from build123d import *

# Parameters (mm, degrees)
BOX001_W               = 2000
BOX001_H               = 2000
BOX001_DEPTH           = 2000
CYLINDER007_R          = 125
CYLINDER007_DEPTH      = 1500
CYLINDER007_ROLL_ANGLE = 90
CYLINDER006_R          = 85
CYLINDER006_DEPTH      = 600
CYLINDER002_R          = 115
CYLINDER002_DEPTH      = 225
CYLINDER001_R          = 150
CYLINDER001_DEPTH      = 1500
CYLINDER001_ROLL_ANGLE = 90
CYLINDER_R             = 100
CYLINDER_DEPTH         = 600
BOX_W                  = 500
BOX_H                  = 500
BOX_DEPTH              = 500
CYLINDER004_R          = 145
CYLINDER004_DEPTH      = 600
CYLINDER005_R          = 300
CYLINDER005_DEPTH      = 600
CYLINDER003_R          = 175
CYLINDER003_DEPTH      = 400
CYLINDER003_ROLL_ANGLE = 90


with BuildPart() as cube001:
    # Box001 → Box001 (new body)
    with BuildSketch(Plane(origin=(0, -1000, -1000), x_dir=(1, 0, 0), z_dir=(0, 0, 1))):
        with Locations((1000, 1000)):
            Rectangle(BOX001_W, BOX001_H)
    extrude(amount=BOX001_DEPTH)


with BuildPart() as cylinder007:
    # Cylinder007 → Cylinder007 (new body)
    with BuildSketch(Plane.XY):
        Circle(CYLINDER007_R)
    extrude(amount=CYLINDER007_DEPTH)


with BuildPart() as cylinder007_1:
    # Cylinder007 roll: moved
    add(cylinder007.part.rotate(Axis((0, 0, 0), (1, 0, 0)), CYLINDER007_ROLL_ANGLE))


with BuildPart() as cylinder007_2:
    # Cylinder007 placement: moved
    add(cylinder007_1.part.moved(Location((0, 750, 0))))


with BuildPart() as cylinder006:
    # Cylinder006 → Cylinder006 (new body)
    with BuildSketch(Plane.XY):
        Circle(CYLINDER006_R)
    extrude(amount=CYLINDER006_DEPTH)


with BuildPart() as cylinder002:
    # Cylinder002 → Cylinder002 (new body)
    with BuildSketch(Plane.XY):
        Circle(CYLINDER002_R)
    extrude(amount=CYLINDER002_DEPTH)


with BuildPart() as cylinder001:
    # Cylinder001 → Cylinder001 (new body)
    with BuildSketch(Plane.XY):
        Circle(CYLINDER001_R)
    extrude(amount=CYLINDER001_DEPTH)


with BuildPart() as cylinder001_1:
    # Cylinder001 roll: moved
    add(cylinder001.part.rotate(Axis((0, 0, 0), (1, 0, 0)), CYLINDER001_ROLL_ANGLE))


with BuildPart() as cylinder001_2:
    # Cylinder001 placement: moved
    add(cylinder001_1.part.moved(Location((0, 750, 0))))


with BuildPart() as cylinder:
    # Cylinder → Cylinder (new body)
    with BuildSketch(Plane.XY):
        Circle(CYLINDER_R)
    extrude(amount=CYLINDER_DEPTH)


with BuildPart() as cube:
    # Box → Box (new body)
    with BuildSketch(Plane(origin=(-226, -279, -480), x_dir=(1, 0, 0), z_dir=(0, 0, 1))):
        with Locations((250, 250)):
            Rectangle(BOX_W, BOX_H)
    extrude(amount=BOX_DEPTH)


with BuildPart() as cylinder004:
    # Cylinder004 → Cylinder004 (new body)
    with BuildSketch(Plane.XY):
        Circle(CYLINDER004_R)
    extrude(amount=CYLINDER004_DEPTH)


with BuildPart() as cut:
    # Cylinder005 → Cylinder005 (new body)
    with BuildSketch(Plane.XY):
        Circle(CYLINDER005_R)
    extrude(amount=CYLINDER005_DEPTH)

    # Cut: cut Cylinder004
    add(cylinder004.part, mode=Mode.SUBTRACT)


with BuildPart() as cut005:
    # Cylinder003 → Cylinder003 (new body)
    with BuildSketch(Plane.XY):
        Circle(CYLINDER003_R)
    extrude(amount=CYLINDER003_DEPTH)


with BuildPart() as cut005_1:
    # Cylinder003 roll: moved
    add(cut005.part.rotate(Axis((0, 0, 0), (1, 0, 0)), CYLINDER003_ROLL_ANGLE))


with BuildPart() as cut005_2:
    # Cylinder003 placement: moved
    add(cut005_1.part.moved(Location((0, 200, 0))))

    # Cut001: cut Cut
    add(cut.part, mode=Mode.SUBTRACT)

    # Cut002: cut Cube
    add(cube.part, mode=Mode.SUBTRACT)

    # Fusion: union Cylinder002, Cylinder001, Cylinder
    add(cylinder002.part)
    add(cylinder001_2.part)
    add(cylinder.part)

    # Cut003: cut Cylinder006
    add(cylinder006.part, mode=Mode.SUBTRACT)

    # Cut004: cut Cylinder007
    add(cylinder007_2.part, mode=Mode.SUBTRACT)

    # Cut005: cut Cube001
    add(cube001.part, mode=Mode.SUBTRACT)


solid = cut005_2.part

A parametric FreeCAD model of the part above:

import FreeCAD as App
import Part
import Sketcher


def add_polygon(sketch, points):
    """Adds a closed chain of lines whose ends are joined by coincident constraints."""
    first, n = sketch.GeometryCount, len(points)
    for a, b in zip(points, points[1:] + points[:1]):
        sketch.addGeometry(Part.LineSegment(App.Vector(*a, 0), App.Vector(*b, 0)), False)
    for i in range(n):
        sketch.addConstraint(Sketcher.Constraint("Coincident", first + i, 2, first + (i + 1) % n, 1))

doc = App.newDocument("Part")
body = doc.addObject("PartDesign::Body", "Body")

# Sketch on XY plane
sketch1 = doc.addObject("Sketcher::SketchObject", "Sketch")
body.addObject(sketch1)
sketch1.AttachmentSupport = (doc.XY_Plane, [""])
sketch1.MapMode = "FlatFace"
sketch1.AttachmentOffset = App.Placement(App.Vector(0, 0, -1000), App.Rotation())
add_polygon(sketch1, [(0, 1000), (0, -1000), (2000, -1000), (2000, 1000)])  # lines 0-3
sketch1.addConstraint([
    Sketcher.Constraint("Vertical", 0),
    Sketcher.Constraint("Horizontal", 1),
    Sketcher.Constraint("Vertical", 2),
    Sketcher.Constraint("Horizontal", 3),
    Sketcher.Constraint("Symmetric", 0, 2, 3, 2, -1, 1),
    Sketcher.Constraint("Equal", 3, 0),
    Sketcher.Constraint("DistanceX", 1, 1, 1, 2, 2000.0),
])
pad1 = doc.addObject("PartDesign::Pad", "Pad")
body.addObject(pad1)
pad1.Profile = sketch1
pad1.Length = 2000
body2 = doc.addObject("PartDesign::Body", "Body001")

# Sketch on XY plane
sketch2 = doc.addObject("Sketcher::SketchObject", "Sketch001")
body2.addObject(sketch2)
sketch2.AttachmentSupport = (doc.getObject("XY_Plane001"), [""])
sketch2.MapMode = "FlatFace"
sketch2.addGeometry(Part.Circle(App.Vector(0, 0, 0), App.Vector(0, 0, 1), 125), False)
sketch2.addConstraint([
    Sketcher.Constraint("Coincident", 0, 3, -1, 1),
    Sketcher.Constraint("Diameter", 0, 250.0),
])
pad2 = doc.addObject("PartDesign::Pad", "Pad001")
body2.addObject(pad2)
pad2.Profile = sketch2
pad2.Length = 1500
body3 = doc.addObject("PartDesign::Body", "Body002")
doc.recompute()

body2.Placement = App.Placement(App.Vector(0, 0, 0), App.Rotation(App.Vector(1, 0, 0), 90))
boolean = doc.addObject("PartDesign::Boolean", "Boolean")
body3.addObject(boolean)
boolean.Type = "Fuse"
boolean.addObjects([body2])
body4 = doc.addObject("PartDesign::Body", "Body003")
doc.recompute()

body3.Placement = App.Placement(App.Vector(0, 750, 0), App.Rotation(App.Vector(0, 0, 1), 0))
boolean2 = doc.addObject("PartDesign::Boolean", "Boolean001")
body4.addObject(boolean2)
boolean2.Type = "Fuse"
boolean2.addObjects([body3])
body5 = doc.addObject("PartDesign::Body", "Body004")

# Sketch on XY plane
sketch3 = doc.addObject("Sketcher::SketchObject", "Sketch002")
body5.addObject(sketch3)
sketch3.AttachmentSupport = (doc.getObject("XY_Plane004"), [""])
sketch3.MapMode = "FlatFace"
sketch3.addGeometry(Part.Circle(App.Vector(0, 0, 0), App.Vector(0, 0, 1), 85), False)
sketch3.addConstraint([
    Sketcher.Constraint("Coincident", 0, 3, -1, 1),
    Sketcher.Constraint("Diameter", 0, 170.0),
])
pad3 = doc.addObject("PartDesign::Pad", "Pad002")
body5.addObject(pad3)
pad3.Profile = sketch3
pad3.Length = 600
body6 = doc.addObject("PartDesign::Body", "Body005")

# Sketch on XY plane
sketch4 = doc.addObject("Sketcher::SketchObject", "Sketch003")
body6.addObject(sketch4)
sketch4.AttachmentSupport = (doc.getObject("XY_Plane005"), [""])
sketch4.MapMode = "FlatFace"
sketch4.addGeometry(Part.Circle(App.Vector(0, 0, 0), App.Vector(0, 0, 1), 115), False)
sketch4.addConstraint([
    Sketcher.Constraint("Coincident", 0, 3, -1, 1),
    Sketcher.Constraint("Diameter", 0, 230.0),
])
pad4 = doc.addObject("PartDesign::Pad", "Pad003")
body6.addObject(pad4)
pad4.Profile = sketch4
pad4.Length = 225
body7 = doc.addObject("PartDesign::Body", "Body006")

# Sketch on XY plane
sketch5 = doc.addObject("Sketcher::SketchObject", "Sketch004")
body7.addObject(sketch5)
sketch5.AttachmentSupport = (doc.getObject("XY_Plane006"), [""])
sketch5.MapMode = "FlatFace"
sketch5.addGeometry(Part.Circle(App.Vector(0, 0, 0), App.Vector(0, 0, 1), 150), False)
sketch5.addConstraint([
    Sketcher.Constraint("Coincident", 0, 3, -1, 1),
    Sketcher.Constraint("Diameter", 0, 300.0),
])
pad5 = doc.addObject("PartDesign::Pad", "Pad004")
body7.addObject(pad5)
pad5.Profile = sketch5
pad5.Length = 1500
body8 = doc.addObject("PartDesign::Body", "Body007")
doc.recompute()

body7.Placement = App.Placement(App.Vector(0, 0, 0), App.Rotation(App.Vector(1, 0, 0), 90))
boolean3 = doc.addObject("PartDesign::Boolean", "Boolean002")
body8.addObject(boolean3)
boolean3.Type = "Fuse"
boolean3.addObjects([body7])
body9 = doc.addObject("PartDesign::Body", "Body008")
doc.recompute()

body8.Placement = App.Placement(App.Vector(0, 750, 0), App.Rotation(App.Vector(0, 0, 1), 0))
boolean4 = doc.addObject("PartDesign::Boolean", "Boolean003")
body9.addObject(boolean4)
boolean4.Type = "Fuse"
boolean4.addObjects([body8])
body10 = doc.addObject("PartDesign::Body", "Body009")

# Sketch on XY plane
sketch6 = doc.addObject("Sketcher::SketchObject", "Sketch005")
body10.addObject(sketch6)
sketch6.AttachmentSupport = (doc.getObject("XY_Plane009"), [""])
sketch6.MapMode = "FlatFace"
sketch6.addGeometry(Part.Circle(App.Vector(0, 0, 0), App.Vector(0, 0, 1), 100), False)
sketch6.addConstraint([
    Sketcher.Constraint("Coincident", 0, 3, -1, 1),
    Sketcher.Constraint("Diameter", 0, 200.0),
])
pad6 = doc.addObject("PartDesign::Pad", "Pad005")
body10.addObject(pad6)
pad6.Profile = sketch6
pad6.Length = 600
body11 = doc.addObject("PartDesign::Body", "Body010")

# Sketch on XY plane
sketch7 = doc.addObject("Sketcher::SketchObject", "Sketch006")
body11.addObject(sketch7)
sketch7.AttachmentSupport = (doc.getObject("XY_Plane010"), [""])
sketch7.MapMode = "FlatFace"
sketch7.AttachmentOffset = App.Placement(App.Vector(0, 0, -480), App.Rotation())
add_polygon(sketch7, [(-226, 221), (-226, -279), (274, -279), (274, 221)])  # lines 0-3
sketch7.addConstraint([
    Sketcher.Constraint("Vertical", 0),
    Sketcher.Constraint("Horizontal", 1),
    Sketcher.Constraint("Vertical", 2),
    Sketcher.Constraint("Horizontal", 3),
    Sketcher.Constraint("Equal", 3, 0),
    Sketcher.Constraint("DistanceX", 1, 1, 1, 2, 500.0),
    Sketcher.Constraint("DistanceX", 0, 2, -1, 1, 226.0),
    Sketcher.Constraint("DistanceY", 0, 2, -1, 1, 279.0),
])
pad7 = doc.addObject("PartDesign::Pad", "Pad006")
body11.addObject(pad7)
pad7.Profile = sketch7
pad7.Length = 500
body12 = doc.addObject("PartDesign::Body", "Body011")

# Sketch on XY plane
sketch8 = doc.addObject("Sketcher::SketchObject", "Sketch007")
body12.addObject(sketch8)
sketch8.AttachmentSupport = (doc.getObject("XY_Plane011"), [""])
sketch8.MapMode = "FlatFace"
sketch8.addGeometry(Part.Circle(App.Vector(0, 0, 0), App.Vector(0, 0, 1), 145), False)
sketch8.addConstraint([
    Sketcher.Constraint("Coincident", 0, 3, -1, 1),
    Sketcher.Constraint("Diameter", 0, 290.0),
])
pad8 = doc.addObject("PartDesign::Pad", "Pad007")
body12.addObject(pad8)
pad8.Profile = sketch8
pad8.Length = 600
body13 = doc.addObject("PartDesign::Body", "Body012")

# Sketch on XY plane
sketch9 = doc.addObject("Sketcher::SketchObject", "Sketch008")
body13.addObject(sketch9)
sketch9.AttachmentSupport = (doc.getObject("XY_Plane012"), [""])
sketch9.MapMode = "FlatFace"
sketch9.addGeometry(Part.Circle(App.Vector(0, 0, 0), App.Vector(0, 0, 1), 300), False)
sketch9.addConstraint([
    Sketcher.Constraint("Coincident", 0, 3, -1, 1),
    Sketcher.Constraint("Diameter", 0, 600.0),
])
pad9 = doc.addObject("PartDesign::Pad", "Pad008")
body13.addObject(pad9)
pad9.Profile = sketch9
pad9.Length = 600
doc.recompute()

boolean5 = doc.addObject("PartDesign::Boolean", "Boolean004")
body13.addObject(boolean5)
boolean5.Type = "Cut"
boolean5.addObjects([body12])
body14 = doc.addObject("PartDesign::Body", "Body013")

# Sketch on XY plane
sketch10 = doc.addObject("Sketcher::SketchObject", "Sketch009")
body14.addObject(sketch10)
sketch10.AttachmentSupport = (doc.getObject("XY_Plane013"), [""])
sketch10.MapMode = "FlatFace"
sketch10.addGeometry(Part.Circle(App.Vector(0, 0, 0), App.Vector(0, 0, 1), 175), False)
sketch10.addConstraint([
    Sketcher.Constraint("Coincident", 0, 3, -1, 1),
    Sketcher.Constraint("Diameter", 0, 350.0),
])
pad10 = doc.addObject("PartDesign::Pad", "Pad009")
body14.addObject(pad10)
pad10.Profile = sketch10
pad10.Length = 400
body15 = doc.addObject("PartDesign::Body", "Body014")
doc.recompute()

body14.Placement = App.Placement(App.Vector(0, 0, 0), App.Rotation(App.Vector(1, 0, 0), 90))
boolean6 = doc.addObject("PartDesign::Boolean", "Boolean005")
body15.addObject(boolean6)
boolean6.Type = "Fuse"
boolean6.addObjects([body14])
body16 = doc.addObject("PartDesign::Body", "Body015")
doc.recompute()

body15.Placement = App.Placement(App.Vector(0, 200, 0), App.Rotation(App.Vector(0, 0, 1), 0))
boolean7 = doc.addObject("PartDesign::Boolean", "Boolean006")
body16.addObject(boolean7)
boolean7.Type = "Fuse"
boolean7.addObjects([body15])
doc.recompute()

boolean8 = doc.addObject("PartDesign::Boolean", "Boolean007")
body16.addObject(boolean8)
boolean8.Type = "Cut"
boolean8.addObjects([body13])
doc.recompute()

boolean9 = doc.addObject("PartDesign::Boolean", "Boolean008")
body16.addObject(boolean9)
boolean9.Type = "Cut"
boolean9.addObjects([body11])
doc.recompute()

boolean10 = doc.addObject("PartDesign::Boolean", "Boolean009")
body16.addObject(boolean10)
boolean10.Type = "Fuse"
boolean10.addObjects([body6])
doc.recompute()

boolean11 = doc.addObject("PartDesign::Boolean", "Boolean010")
body16.addObject(boolean11)
boolean11.Type = "Fuse"
boolean11.addObjects([body9])
doc.recompute()

boolean12 = doc.addObject("PartDesign::Boolean", "Boolean011")
body16.addObject(boolean12)
boolean12.Type = "Fuse"
boolean12.addObjects([body10])
doc.recompute()

boolean13 = doc.addObject("PartDesign::Boolean", "Boolean012")
body16.addObject(boolean13)
boolean13.Type = "Cut"
boolean13.addObjects([body5])
doc.recompute()

boolean14 = doc.addObject("PartDesign::Boolean", "Boolean013")
body16.addObject(boolean14)
boolean14.Type = "Cut"
boolean14.addObjects([body4])
doc.recompute()

boolean15 = doc.addObject("PartDesign::Boolean", "Boolean014")
body16.addObject(boolean15)
boolean15.Type = "Cut"
boolean15.addObjects([body])

doc.recompute()
